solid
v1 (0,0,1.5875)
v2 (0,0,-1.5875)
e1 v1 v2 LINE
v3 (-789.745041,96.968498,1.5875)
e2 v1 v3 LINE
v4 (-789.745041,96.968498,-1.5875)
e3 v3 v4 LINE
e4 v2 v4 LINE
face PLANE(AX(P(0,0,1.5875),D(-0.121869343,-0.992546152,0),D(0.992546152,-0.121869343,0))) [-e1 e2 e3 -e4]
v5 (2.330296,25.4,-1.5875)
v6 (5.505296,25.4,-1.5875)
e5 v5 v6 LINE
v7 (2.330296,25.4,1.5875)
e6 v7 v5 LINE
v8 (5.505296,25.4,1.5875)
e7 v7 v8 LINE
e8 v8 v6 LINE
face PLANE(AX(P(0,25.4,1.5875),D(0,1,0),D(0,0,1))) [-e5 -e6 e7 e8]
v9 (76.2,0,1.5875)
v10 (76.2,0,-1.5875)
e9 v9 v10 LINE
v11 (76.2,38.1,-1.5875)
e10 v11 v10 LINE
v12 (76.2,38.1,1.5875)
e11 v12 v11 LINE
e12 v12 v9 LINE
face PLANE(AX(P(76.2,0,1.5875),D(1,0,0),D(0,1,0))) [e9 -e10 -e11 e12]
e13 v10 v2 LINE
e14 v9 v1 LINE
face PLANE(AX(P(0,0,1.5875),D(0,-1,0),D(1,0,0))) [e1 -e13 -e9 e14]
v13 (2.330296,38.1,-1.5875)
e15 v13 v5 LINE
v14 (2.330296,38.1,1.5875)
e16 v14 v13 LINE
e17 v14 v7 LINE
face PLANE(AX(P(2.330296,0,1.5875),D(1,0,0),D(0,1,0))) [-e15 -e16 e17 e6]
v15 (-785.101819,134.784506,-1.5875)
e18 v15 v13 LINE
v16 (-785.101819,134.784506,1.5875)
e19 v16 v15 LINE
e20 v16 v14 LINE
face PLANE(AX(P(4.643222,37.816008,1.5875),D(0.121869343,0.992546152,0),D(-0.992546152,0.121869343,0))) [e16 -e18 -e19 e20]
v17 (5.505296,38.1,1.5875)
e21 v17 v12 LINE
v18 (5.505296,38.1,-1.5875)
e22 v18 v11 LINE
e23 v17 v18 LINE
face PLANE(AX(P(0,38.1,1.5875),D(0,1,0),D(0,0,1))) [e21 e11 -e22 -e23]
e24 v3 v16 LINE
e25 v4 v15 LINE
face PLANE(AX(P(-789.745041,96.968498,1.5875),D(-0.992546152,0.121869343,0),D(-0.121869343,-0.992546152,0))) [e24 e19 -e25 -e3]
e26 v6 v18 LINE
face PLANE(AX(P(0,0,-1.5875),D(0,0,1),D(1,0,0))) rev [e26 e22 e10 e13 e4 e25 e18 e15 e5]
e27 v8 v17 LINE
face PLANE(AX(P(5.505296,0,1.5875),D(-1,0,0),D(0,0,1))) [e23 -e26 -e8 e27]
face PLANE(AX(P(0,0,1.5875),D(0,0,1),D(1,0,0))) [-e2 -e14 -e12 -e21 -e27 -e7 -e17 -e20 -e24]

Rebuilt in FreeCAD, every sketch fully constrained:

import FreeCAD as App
import Part
import Sketcher

V = App.Vector
Q = App.Units.Quantity

doc = App.newDocument("Part")
params = doc.addObject("Spreadsheet::Sheet", "Params")
for row, (alias, value) in enumerate([
    ("sketch1_width", "3 in"),
    ("sketch1_height", "1.5 in"),
    ("sketch1_height2", "0.5 in"),
    ("sketch1_length", "1.5 in"),
    ("sketch1_width2", "0.125 in"),
    ("pad1_length", "0.125 in"),
], start=1):
    params.set(f"A{row}", alias)
    params.set(f"B{row}", "=" + value)
    params.setAlias(f"B{row}", alias)

body = doc.addObject("PartDesign::Body", "Body")

sketch1 = doc.addObject("Sketcher::SketchObject", "Sketch")
body.addObject(sketch1)
sketch1.AttachmentSupport = (doc.XY_Plane, [""])
sketch1.MapMode = "FlatFace"
sketch1.addGeometry([
    Part.LineSegment(V(-789.7, 97, 0), V(0, 0, 0)),
    Part.LineSegment(V(0, 0, 0), V(76.2, 0, 0)),
    Part.LineSegment(V(76.2, 0, 0), V(76.2, 38.1, 0)),
    Part.LineSegment(V(76.2, 38.1, 0), V(5.5, 38.1, 0)),
    Part.LineSegment(V(5.5, 38.1, 0), V(5.5, 25.4, 0)),
    Part.LineSegment(V(5.5, 25.4, 0), V(2.3, 25.4, 0)),
    Part.LineSegment(V(2.3, 25.4, 0), V(2.3, 38.1, 0)),
    Part.LineSegment(V(2.3, 38.1, 0), V(-785.1, 134.8, 0)),
    Part.LineSegment(V(-785.1, 134.8, 0), V(-789.7, 97, 0)),
], False)
sketch1.addConstraint([
    Sketcher.Constraint("Coincident", 0, 2, 1, 1),
    Sketcher.Constraint("Coincident", 1, 2, 2, 1),
    Sketcher.Constraint("Coincident", 2, 2, 3, 1),
    Sketcher.Constraint("Coincident", 3, 2, 4, 1),
    Sketcher.Constraint("Coincident", 4, 2, 5, 1),
    Sketcher.Constraint("Coincident", 5, 2, 6, 1),
    Sketcher.Constraint("Coincident", 6, 2, 7, 1),
    Sketcher.Constraint("Coincident", 7, 2, 8, 1),
    Sketcher.Constraint("Coincident", 8, 2, 0, 1),
    Sketcher.Constraint("Horizontal", 1),
    Sketcher.Constraint("Vertical", 2),
    Sketcher.Constraint("Horizontal", 3),
    Sketcher.Constraint("Vertical", 4),
    Sketcher.Constraint("Horizontal", 5),
    Sketcher.Constraint("Vertical", 6),
    Sketcher.Constraint("Coincident", 0, 2, -1, 1),
    Sketcher.Constraint("Parallel", 0, 7),
    Sketcher.Constraint("Perpendicular", 7, 8),
    Sketcher.Constraint("Horizontal", 3, 2, 6, 2),
    Sketcher.Constraint("DistanceX", 1, 1, 1, 2, Q("3 in")),
    Sketcher.Constraint("DistanceY", 2, 1, 2, 2, Q("1.5 in")),
    Sketcher.Constraint("DistanceY", 4, 2, 4, 1, Q("0.5 in")),
    Sketcher.Constraint("Angle", 0, Q("-7 deg")),
    Sketcher.Constraint("Distance", 8, Q("1.5 in")),
    Sketcher.Constraint("DistanceX", 5, 2, 5, 1, Q("0.125 in")),
    Sketcher.Constraint("DistanceY", -1, 1, 8, 2, 96.968498),
])
sketch1.setExpression("Constraints[19]", "Params.sketch1_width")
sketch1.setExpression("Constraints[20]", "Params.sketch1_height")
sketch1.setExpression("Constraints[21]", "Params.sketch1_height2")
sketch1.setExpression("Constraints[23]", "Params.sketch1_length")
sketch1.setExpression("Constraints[24]", "Params.sketch1_width2")
pad1 = doc.addObject("PartDesign::Pad", "Pad")
body.addObject(pad1)
pad1.Profile = sketch1
pad1.setExpression("Length", "Params.pad1_length")
pad1.Midplane = True

doc.recompute()
